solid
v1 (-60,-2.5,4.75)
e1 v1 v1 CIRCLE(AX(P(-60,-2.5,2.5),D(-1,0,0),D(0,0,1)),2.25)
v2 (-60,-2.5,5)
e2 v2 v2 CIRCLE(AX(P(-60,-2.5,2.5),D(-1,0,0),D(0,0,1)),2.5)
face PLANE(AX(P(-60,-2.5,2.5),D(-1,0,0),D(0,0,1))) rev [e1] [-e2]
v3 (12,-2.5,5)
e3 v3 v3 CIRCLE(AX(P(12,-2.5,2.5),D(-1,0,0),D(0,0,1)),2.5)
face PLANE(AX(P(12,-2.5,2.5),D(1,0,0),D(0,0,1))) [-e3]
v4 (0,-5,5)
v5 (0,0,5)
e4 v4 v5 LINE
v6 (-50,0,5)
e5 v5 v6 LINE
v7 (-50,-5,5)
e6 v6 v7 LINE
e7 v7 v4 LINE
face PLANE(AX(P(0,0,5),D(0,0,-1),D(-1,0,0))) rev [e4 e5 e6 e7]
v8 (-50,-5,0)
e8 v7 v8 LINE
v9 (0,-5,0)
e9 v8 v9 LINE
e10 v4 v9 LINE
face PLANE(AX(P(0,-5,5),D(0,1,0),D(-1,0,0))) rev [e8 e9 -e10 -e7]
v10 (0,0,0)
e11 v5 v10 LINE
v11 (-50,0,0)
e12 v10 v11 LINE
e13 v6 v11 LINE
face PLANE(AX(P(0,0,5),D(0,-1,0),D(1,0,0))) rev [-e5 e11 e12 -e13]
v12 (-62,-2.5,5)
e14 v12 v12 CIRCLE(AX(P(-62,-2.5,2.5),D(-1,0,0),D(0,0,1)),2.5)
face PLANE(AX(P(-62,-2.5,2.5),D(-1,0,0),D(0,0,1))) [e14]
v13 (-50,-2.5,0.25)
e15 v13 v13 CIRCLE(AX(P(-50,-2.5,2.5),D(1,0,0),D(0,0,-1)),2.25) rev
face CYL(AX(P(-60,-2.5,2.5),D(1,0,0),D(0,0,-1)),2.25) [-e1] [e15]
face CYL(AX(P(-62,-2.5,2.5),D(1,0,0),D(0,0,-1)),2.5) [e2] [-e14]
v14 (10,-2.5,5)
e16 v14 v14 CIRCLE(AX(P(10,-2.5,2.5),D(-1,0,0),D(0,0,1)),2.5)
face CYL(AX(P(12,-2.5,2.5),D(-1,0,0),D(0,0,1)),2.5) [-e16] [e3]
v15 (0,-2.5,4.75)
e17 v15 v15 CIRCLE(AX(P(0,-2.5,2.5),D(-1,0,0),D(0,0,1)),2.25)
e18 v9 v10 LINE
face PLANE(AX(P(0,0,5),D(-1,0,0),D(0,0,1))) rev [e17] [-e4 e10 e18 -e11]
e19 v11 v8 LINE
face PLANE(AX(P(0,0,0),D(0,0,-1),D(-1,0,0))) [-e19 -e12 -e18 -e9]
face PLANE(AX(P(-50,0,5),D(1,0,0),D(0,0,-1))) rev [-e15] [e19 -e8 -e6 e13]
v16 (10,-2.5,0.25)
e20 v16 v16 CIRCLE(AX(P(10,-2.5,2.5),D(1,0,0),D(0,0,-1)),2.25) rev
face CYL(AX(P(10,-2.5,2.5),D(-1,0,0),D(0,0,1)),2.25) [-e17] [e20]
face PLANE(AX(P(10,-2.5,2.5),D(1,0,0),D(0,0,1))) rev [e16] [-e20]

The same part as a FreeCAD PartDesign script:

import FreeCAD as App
import Part
import Sketcher

V = App.Vector
Q = App.Units.Quantity


def add_polygon(sketch, points):
    """Adds a closed chain of lines whose ends are joined by coincident constraints."""
    first, n = sketch.GeometryCount, len(points)
    for a, b in zip(points, points[1:] + points[:1]):
        sketch.addGeometry(Part.LineSegment(App.Vector(*a, 0), App.Vector(*b, 0)), False)
    for i in range(n):
        sketch.addConstraint(Sketcher.Constraint("Coincident", first + i, 2, first + (i + 1) % n, 1))

doc = App.newDocument("Part")
body = doc.addObject("PartDesign::Body", "Body")

# Sketch on XY plane
sketch1 = body.newObject("Sketcher::SketchObject", "Sketch")
sketch1.AttachmentSupport = (doc.getObject("XY_Plane"), [""])
sketch1.MapMode = "FlatFace"
add_polygon(sketch1, [(-50, 0), (-50, -5), (0, -5), (0, 0)])  # lines 0-3
sketch1.addConstraint([
    Sketcher.Constraint("Vertical", 0),
    Sketcher.Constraint("Horizontal", 1),
    Sketcher.Constraint("Vertical", 2),
    Sketcher.Constraint("Horizontal", 3),
    Sketcher.Constraint("Coincident", 2, 2, -1, 1),
    Sketcher.Constraint("DistanceX", 1, 1, 1, 2, Q("50 mm")),
    Sketcher.Constraint("DistanceY", 0, 2, 0, 1, Q("5 mm")),
])
pad1 = body.newObject("PartDesign::Pad", "Pad")
pad1.Profile = sketch1
pad1.Length = 5

# Sketch on YZ plane
sketch2 = body.newObject("Sketcher::SketchObject", "Sketch001")
sketch2.AttachmentSupport = (doc.getObject("YZ_Plane"), [""])
sketch2.MapMode = "FlatFace"
sketch2.AttachmentOffset = App.Placement(V(0, 0, -50), App.Rotation())
sketch2.addGeometry(Part.Circle(V(-2.5, 2.5, 0), V(0, 0, 1), 2.2), False)
sketch2.addConstraint([
    Sketcher.Constraint("Diameter", 0, Q("4.5 mm")),
    Sketcher.Constraint("DistanceX", 0, 3, -1, 1, Q("2.5 mm")),
    Sketcher.Constraint("DistanceY", -1, 1, 0, 3, Q("2.5 mm")),
])
pad2 = body.newObject("PartDesign::Pad", "Pad001")
pad2.Profile = sketch2
pad2.Length = 10
pad2.Reversed = True

# Sketch on YZ plane
sketch3 = body.newObject("Sketcher::SketchObject", "Sketch002")
sketch3.AttachmentSupport = (doc.getObject("YZ_Plane"), [""])
sketch3.MapMode = "FlatFace"
sketch3.AttachmentOffset = App.Placement(V(0, 0, -60), App.Rotation())
sketch3.addGeometry(Part.Circle(V(-2.5, 2.5, 0), V(0, 0, 1), 2.5), False)
sketch3.addConstraint([
    Sketcher.Constraint("Diameter", 0, Q("5 mm")),
    Sketcher.Constraint("DistanceX", 0, 3, -1, 1, Q("2.5 mm")),
    Sketcher.Constraint("DistanceY", -1, 1, 0, 3, Q("2.5 mm")),
])
pad3 = body.newObject("PartDesign::Pad", "Pad002")
pad3.Profile = sketch3
pad3.Length = 2
pad3.Reversed = True
doc.recompute()

datumplane = body.newObject("PartDesign::Plane", "DatumPlane")
datumplane.AttachmentSupport = (doc.getObject("YZ_Plane"), [""])
datumplane.MapMode = "FlatFace"
datumplane.AttachmentOffset = App.Placement(V(0, 0, -25), App.Rotation())
mirrored = body.newObject("PartDesign::Mirrored", "Mirrored")
mirrored.Originals = [pad2, pad3]
mirrored.MirrorPlane = (datumplane, [""])
body.Tip = mirrored

doc.recompute()
